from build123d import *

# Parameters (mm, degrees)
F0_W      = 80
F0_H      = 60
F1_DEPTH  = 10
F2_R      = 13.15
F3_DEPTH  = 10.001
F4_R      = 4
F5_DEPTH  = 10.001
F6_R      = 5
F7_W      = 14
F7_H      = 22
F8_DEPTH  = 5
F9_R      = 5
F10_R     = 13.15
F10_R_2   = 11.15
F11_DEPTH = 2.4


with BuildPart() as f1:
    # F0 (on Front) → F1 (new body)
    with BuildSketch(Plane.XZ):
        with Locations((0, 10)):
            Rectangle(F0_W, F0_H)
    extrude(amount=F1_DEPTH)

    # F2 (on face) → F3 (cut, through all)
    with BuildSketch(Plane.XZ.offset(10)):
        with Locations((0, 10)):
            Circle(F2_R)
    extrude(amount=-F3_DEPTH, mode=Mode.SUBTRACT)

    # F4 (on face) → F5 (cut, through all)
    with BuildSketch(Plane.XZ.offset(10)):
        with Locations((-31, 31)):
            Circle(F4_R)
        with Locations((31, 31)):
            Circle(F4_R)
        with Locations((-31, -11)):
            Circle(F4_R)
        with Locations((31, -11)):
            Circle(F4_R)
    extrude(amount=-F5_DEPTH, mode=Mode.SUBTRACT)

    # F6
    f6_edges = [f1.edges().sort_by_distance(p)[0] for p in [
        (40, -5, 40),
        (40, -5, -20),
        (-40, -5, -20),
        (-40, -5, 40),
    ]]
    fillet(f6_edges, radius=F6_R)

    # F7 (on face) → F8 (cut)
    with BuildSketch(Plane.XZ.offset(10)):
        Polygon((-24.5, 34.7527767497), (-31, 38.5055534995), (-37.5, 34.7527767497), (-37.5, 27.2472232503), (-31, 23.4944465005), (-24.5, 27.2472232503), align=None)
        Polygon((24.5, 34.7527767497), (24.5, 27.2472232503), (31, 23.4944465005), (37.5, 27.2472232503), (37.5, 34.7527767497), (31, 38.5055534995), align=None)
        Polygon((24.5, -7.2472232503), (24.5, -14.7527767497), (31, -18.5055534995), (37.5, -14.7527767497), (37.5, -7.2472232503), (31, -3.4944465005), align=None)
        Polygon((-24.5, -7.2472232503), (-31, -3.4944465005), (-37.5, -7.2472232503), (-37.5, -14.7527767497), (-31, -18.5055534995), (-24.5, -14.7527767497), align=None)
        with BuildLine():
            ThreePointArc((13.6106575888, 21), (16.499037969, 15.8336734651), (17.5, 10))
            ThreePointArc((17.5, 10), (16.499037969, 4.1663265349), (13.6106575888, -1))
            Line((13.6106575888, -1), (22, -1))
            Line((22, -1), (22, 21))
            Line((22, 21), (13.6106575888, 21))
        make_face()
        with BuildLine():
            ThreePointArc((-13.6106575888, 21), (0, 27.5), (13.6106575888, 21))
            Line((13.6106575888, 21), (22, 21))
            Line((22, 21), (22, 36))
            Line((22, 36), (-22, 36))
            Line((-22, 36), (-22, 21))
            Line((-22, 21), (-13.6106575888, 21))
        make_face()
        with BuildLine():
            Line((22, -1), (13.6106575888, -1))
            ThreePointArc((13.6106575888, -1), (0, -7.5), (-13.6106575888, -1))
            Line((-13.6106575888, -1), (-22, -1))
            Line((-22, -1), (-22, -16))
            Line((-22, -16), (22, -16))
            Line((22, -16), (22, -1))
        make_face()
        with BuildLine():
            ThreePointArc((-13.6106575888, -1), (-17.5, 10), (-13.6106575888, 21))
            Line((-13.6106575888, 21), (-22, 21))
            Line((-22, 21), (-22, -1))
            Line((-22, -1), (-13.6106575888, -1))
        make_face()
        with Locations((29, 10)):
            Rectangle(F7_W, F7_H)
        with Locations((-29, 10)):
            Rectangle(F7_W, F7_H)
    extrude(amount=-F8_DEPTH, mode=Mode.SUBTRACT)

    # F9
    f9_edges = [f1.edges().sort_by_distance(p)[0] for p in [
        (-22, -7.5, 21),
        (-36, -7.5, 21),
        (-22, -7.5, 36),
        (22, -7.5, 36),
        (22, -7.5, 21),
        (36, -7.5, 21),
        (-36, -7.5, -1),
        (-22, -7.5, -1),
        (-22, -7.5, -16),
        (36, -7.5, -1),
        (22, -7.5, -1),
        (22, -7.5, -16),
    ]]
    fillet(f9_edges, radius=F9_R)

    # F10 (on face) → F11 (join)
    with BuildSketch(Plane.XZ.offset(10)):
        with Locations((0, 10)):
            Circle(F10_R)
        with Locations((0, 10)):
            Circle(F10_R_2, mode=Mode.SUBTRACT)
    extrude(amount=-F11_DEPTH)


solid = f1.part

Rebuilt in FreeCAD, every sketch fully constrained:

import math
import FreeCAD as App
import Part
import Sketcher

V = App.Vector
Q = App.Units.Quantity


def edges_at(feature, points):
    """Names of the edges that pass closest to the given points."""
    edges = feature.Shape.Edges
    near = lambda p: min(range(len(edges)), key=lambda i: edges[i].distToShape(Part.Vertex(*p))[0])
    return sorted({f"Edge{near(p) + 1}" for p in points})

doc = App.newDocument("Part")
body = doc.addObject("PartDesign::Body", "Body")

sketch1 = doc.addObject("Sketcher::SketchObject", "Sketch")
body.addObject(sketch1)
sketch1.AttachmentSupport = (doc.XZ_Plane, [""])
sketch1.MapMode = "FlatFace"
sketch1.addGeometry([
    Part.LineSegment(V(-40, 40, 0), V(-40, -20, 0)),
    Part.LineSegment(V(-40, -20, 0), V(40, -20, 0)),
    Part.LineSegment(V(40, -20, 0), V(40, 40, 0)),
    Part.LineSegment(V(40, 40, 0), V(-40, 40, 0)),
], False)
sketch1.addConstraint([
    Sketcher.Constraint("Coincident", 0, 2, 1, 1),
    Sketcher.Constraint("Coincident", 1, 2, 2, 1),
    Sketcher.Constraint("Coincident", 2, 2, 3, 1),
    Sketcher.Constraint("Coincident", 3, 2, 0, 1),
    Sketcher.Constraint("Vertical", 0),
    Sketcher.Constraint("Horizontal", 1),
    Sketcher.Constraint("Vertical", 2),
    Sketcher.Constraint("Horizontal", 3),
    Sketcher.Constraint("DistanceX", 1, 1, 1, 2, Q("80 mm")),
    Sketcher.Constraint("DistanceY", 0, 2, 0, 1, Q("60 mm")),
    Sketcher.Constraint("DistanceX", 0, 2, -1, 1, Q("40 mm")),
    Sketcher.Constraint("DistanceY", 0, 2, -1, 1, Q("20 mm")),
])
pad1 = doc.addObject("PartDesign::Pad", "Pad")
body.addObject(pad1)
pad1.Profile = sketch1
pad1.Length = 10

sketch2 = doc.addObject("Sketcher::SketchObject", "Sketch001")
body.addObject(sketch2)
sketch2.AttachmentSupport = (doc.XZ_Plane, [""])
sketch2.MapMode = "FlatFace"
sketch2.AttachmentOffset = App.Placement(V(0, 0, 10), App.Rotation())
sketch2.addGeometry(Part.Circle(V(0, 10, 0), V(0, 0, 1), 13.15), False)
sketch2.addConstraint([
    Sketcher.Constraint("PointOnObject", 0, 3, -2),
    Sketcher.Constraint("Diameter", 0, Q("26.3 mm")),
    Sketcher.Constraint("DistanceY", -1, 1, 0, 3, Q("10 mm")),
])
pocket1 = doc.addObject("PartDesign::Pocket", "Pocket")
body.addObject(pocket1)
pocket1.Profile = sketch2
pocket1.Type = "ThroughAll"

sketch3 = doc.addObject("Sketcher::SketchObject", "Sketch002")
body.addObject(sketch3)
sketch3.AttachmentSupport = (doc.XZ_Plane, [""])
sketch3.MapMode = "FlatFace"
sketch3.AttachmentOffset = App.Placement(V(0, 0, 10), App.Rotation())
sketch3.addGeometry([
    Part.Circle(V(-31, 31, 0), V(0, 0, 1), 4),
    Part.Circle(V(31, 31, 0), V(0, 0, 1), 4),
    Part.Circle(V(-31, -11, 0), V(0, 0, 1), 4),
    Part.Circle(V(31, -11, 0), V(0, 0, 1), 4),
], False)
sketch3.addConstraint([
    Sketcher.Constraint("Equal", 0, 1),
    Sketcher.Constraint("Equal", 1, 2),
    Sketcher.Constraint("Equal", 2, 3),
    Sketcher.Constraint("Symmetric", 0, 3, 1, 3, -2),
    Sketcher.Constraint("Symmetric", 2, 3, 3, 3, -2),
    Sketcher.Constraint("Vertical", 0, 3, 2, 3),
    Sketcher.Constraint("Diameter", 0, Q("8 mm")),
    Sketcher.Constraint("DistanceX", 0, 3, -1, 1, Q("31 mm")),
    Sketcher.Constraint("DistanceY", -1, 1, 0, 3, Q("31 mm")),
    Sketcher.Constraint("DistanceY", 2, 3, -1, 1, Q("11 mm")),
])
pocket2 = doc.addObject("PartDesign::Pocket", "Pocket001")
body.addObject(pocket2)
pocket2.Profile = sketch3
pocket2.Type = "ThroughAll"
doc.recompute()

fillet = doc.addObject("PartDesign::Fillet", "Fillet")
body.addObject(fillet)
fillet.Base = (pocket2, edges_at(pocket2, [
    (40, -5, 40),
    (40, -5, -20),
    (-40, -5, -20),
    (-40, -5, 40),
]))
fillet.Radius = 5

sketch4 = doc.addObject("Sketcher::SketchObject", "Sketch003")
body.addObject(sketch4)
sketch4.AttachmentSupport = (doc.XZ_Plane, [""])
sketch4.MapMode = "FlatFace"
sketch4.AttachmentOffset = App.Placement(V(0, 0, 10), App.Rotation())
sketch4.addGeometry([
    Part.LineSegment(V(-24.5, 34.752777, 0), V(-31, 38.505553, 0)),
    Part.LineSegment(V(-31, 38.505553, 0), V(-37.5, 34.752777, 0)),
    Part.LineSegment(V(-37.5, 34.752777, 0), V(-37.5, 27.247223, 0)),
    Part.LineSegment(V(-37.5, 27.247223, 0), V(-31, 23.494447, 0)),
    Part.LineSegment(V(-31, 23.494447, 0), V(-24.5, 27.247223, 0)),
    Part.LineSegment(V(-24.5, 27.247223, 0), V(-24.5, 34.752777, 0)),
    Part.LineSegment(V(24.5, 34.752777, 0), V(24.5, 27.247223, 0)),
    Part.LineSegment(V(24.5, 27.247223, 0), V(31, 23.494447, 0)),
    Part.LineSegment(V(31, 23.494447, 0), V(37.5, 27.247223, 0)),
    Part.LineSegment(V(37.5, 27.247223, 0), V(37.5, 34.752777, 0)),
    Part.LineSegment(V(37.5, 34.752777, 0), V(31, 38.505553, 0)),
    Part.LineSegment(V(31, 38.505553, 0), V(24.5, 34.752777, 0)),
    Part.LineSegment(V(24.5, -7.247223, 0), V(24.5, -14.752777, 0)),
    Part.LineSegment(V(24.5, -14.752777, 0), V(31, -18.505553, 0)),
    Part.LineSegment(V(31, -18.505553, 0), V(37.5, -14.752777, 0)),
    Part.LineSegment(V(37.5, -14.752777, 0), V(37.5, -7.247223, 0)),
    Part.LineSegment(V(37.5, -7.247223, 0), V(31, -3.494447, 0)),
    Part.LineSegment(V(31, -3.494447, 0), V(24.5, -7.247223, 0)),
    Part.LineSegment(V(-24.5, -7.247223, 0), V(-31, -3.494447, 0)),
    Part.LineSegment(V(-31, -3.494447, 0), V(-37.5, -7.247223, 0)),
    Part.LineSegment(V(-37.5, -7.247223, 0), V(-37.5, -14.752777, 0)),
    Part.LineSegment(V(-37.5, -14.752777, 0), V(-31, -18.505553, 0)),
    Part.LineSegment(V(-31, -18.505553, 0), V(-24.5, -14.752777, 0)),
    Part.LineSegment(V(-24.5, -14.752777, 0), V(-24.5, -7.247223, 0)),
    Part.LineSegment(V(-22, -16, 0), V(22, -16, 0)),
    Part.LineSegment(V(22, -16, 0), V(22, -1, 0)),
    Part.LineSegment(V(22, -1, 0), V(36, -1, 0)),
    Part.LineSegment(V(36, -1, 0), V(36, 21, 0)),
    Part.LineSegment(V(36, 21, 0), V(22, 21, 0)),
    Part.LineSegment(V(22, 21, 0), V(22, 36, 0)),
    Part.LineSegment(V(22, 36, 0), V(-22, 36, 0)),
    Part.LineSegment(V(-22, 36, 0), V(-22, 21, 0)),
    Part.LineSegment(V(-22, 21, 0), V(-36, 21, 0)),
    Part.LineSegment(V(-36, 21, 0), V(-36, -1, 0)),
    Part.LineSegment(V(-36, -1, 0), V(-22, -1, 0)),
    Part.LineSegment(V(-22, -1, 0), V(-22, -16, 0)),
    Part.ArcOfCircle(Part.Circle(V(0, 10, 0), V(0, 0, 1), 17.5), math.radians(-38.944804), math.radians(38.944804)),
    Part.ArcOfCircle(Part.Circle(V(0, 10, 0), V(0, 0, 1), 17.5), math.radians(-141.055196), math.radians(-38.944804)),
    Part.ArcOfCircle(Part.Circle(V(0, 10, 0), V(0, 0, 1), 17.5), math.radians(141.055196), math.radians(218.944804)),
    Part.ArcOfCircle(Part.Circle(V(0, 10, 0), V(0, 0, 1), 17.5), math.radians(38.944804), math.radians(141.055196)),
], False)
sketch4.addConstraint([
    Sketcher.Constraint("Coincident", 0, 2, 1, 1),
    Sketcher.Constraint("Coincident", 1, 2, 2, 1),
    Sketcher.Constraint("Coincident", 2, 2, 3, 1),
    Sketcher.Constraint("Coincident", 3, 2, 4, 1),
    Sketcher.Constraint("Coincident", 4, 2, 5, 1),
    Sketcher.Constraint("Coincident", 5, 2, 0, 1),
    Sketcher.Constraint("Coincident", 6, 2, 7, 1),
    Sketcher.Constraint("Coincident", 7, 2, 8, 1),
    Sketcher.Constraint("Coincident", 8, 2, 9, 1),
    Sketcher.Constraint("Coincident", 9, 2, 10, 1),
    Sketcher.Constraint("Coincident", 10, 2, 11, 1),
    Sketcher.Constraint("Coincident", 11, 2, 6, 1),
    Sketcher.Constraint("Coincident", 12, 2, 13, 1),
    Sketcher.Constraint("Coincident", 13, 2, 14, 1),
    Sketcher.Constraint("Coincident", 14, 2, 15, 1),
    Sketcher.Constraint("Coincident", 15, 2, 16, 1),
    Sketcher.Constraint("Coincident", 16, 2, 17, 1),
    Sketcher.Constraint("Coincident", 17, 2, 12, 1),
    Sketcher.Constraint("Coincident", 18, 2, 19, 1),
    Sketcher.Constraint("Coincident", 19, 2, 20, 1),
    Sketcher.Constraint("Coincident", 20, 2, 21, 1),
    Sketcher.Constraint("Coincident", 21, 2, 22, 1),
    Sketcher.Constraint("Coincident", 22, 2, 23, 1),
    Sketcher.Constraint("Coincident", 23, 2, 18, 1),
    Sketcher.Constraint("Coincident", 24, 2, 25, 1),
    Sketcher.Constraint("Coincident", 25, 2, 26, 1),
    Sketcher.Constraint("Coincident", 26, 2, 27, 1),
    Sketcher.Constraint("Coincident", 27, 2, 28, 1),
    Sketcher.Constraint("Coincident", 28, 2, 29, 1),
    Sketcher.Constraint("Coincident", 29, 2, 30, 1),
    Sketcher.Constraint("Coincident", 30, 2, 31, 1),
    Sketcher.Constraint("Coincident", 31, 2, 32, 1),
    Sketcher.Constraint("Coincident", 32, 2, 33, 1),
    Sketcher.Constraint("Coincident", 33, 2, 34, 1),
    Sketcher.Constraint("Coincident", 34, 2, 35, 1),
    Sketcher.Constraint("Coincident", 35, 2, 24, 1),
    Sketcher.Constraint("Tangent", 36, 1, 37, 2),
    Sketcher.Constraint("Tangent", 37, 1, 38, 2),
    Sketcher.Constraint("Tangent", 38, 1, 39, 2),
    Sketcher.Constraint("Tangent", 39, 1, 36, 2),
    Sketcher.Constraint("Vertical", 2),
    Sketcher.Constraint("Vertical", 5),
    Sketcher.Constraint("Vertical", 6),
    Sketcher.Constraint("Vertical", 9),
    Sketcher.Constraint("Vertical", 12),
    Sketcher.Constraint("Vertical", 15),
    Sketcher.Constraint("Vertical", 20),
    Sketcher.Constraint("Vertical", 23),
    Sketcher.Constraint("Horizontal", 24),
    Sketcher.Constraint("Vertical", 25),
    Sketcher.Constraint("Horizontal", 26),
    Sketcher.Constraint("Vertical", 27),
    Sketcher.Constraint("Horizontal", 28),
    Sketcher.Constraint("Vertical", 29),
    Sketcher.Constraint("Horizontal", 30),
    Sketcher.Constraint("Vertical", 31),
    Sketcher.Constraint("Horizontal", 32),
    Sketcher.Constraint("Vertical", 33),
    Sketcher.Constraint("Horizontal", 34),
    Sketcher.Constraint("Vertical", 35),
    Sketcher.Constraint("Equal", 36, 37),
    Sketcher.Constraint("Symmetric", 4, 2, 6, 2, -2),
    Sketcher.Constraint("Symmetric", 3, 2, 7, 2, -2),
    Sketcher.Constraint("Symmetric", 2, 2, 8, 2, -2),
    Sketcher.Constraint("Symmetric", 0, 2, 10, 2, -2),
    Sketcher.Constraint("Symmetric", 16, 2, 18, 2, -2),
    Sketcher.Constraint("Symmetric", 15, 2, 19, 2, -2),
    Sketcher.Constraint("Symmetric", 13, 2, 21, 2, -2),
    Sketcher.Constraint("Symmetric", 12, 2, 22, 2, -2),
    Sketcher.Constraint("Symmetric", 28, 2, 31, 2, -2),
    Sketcher.Constraint("Symmetric", 26, 2, 33, 2, -2),
    Sketcher.Constraint("Symmetric", 36, 1, 37, 1, -2),
    Sketcher.Constraint("Parallel", 0, 3),
    Sketcher.Constraint("Parallel", 1, 4),
    Sketcher.Constraint("Parallel", 3, 7),
    Sketcher.Constraint("Parallel", 7, 10),
    Sketcher.Constraint("Parallel", 8, 11),
    Sketcher.Constraint("Parallel", 10, 13),
    Sketcher.Constraint("Parallel", 11, 14),
    Sketcher.Constraint("Parallel", 13, 16),
    Sketcher.Constraint("Parallel", 14, 17),
    Sketcher.Constraint("Parallel", 16, 18),
    Sketcher.Constraint("Parallel", 18, 21),
    Sketcher.Constraint("Horizontal", 2, 2, 4, 2),
    Sketcher.Constraint("Horizontal", 1, 2, 5, 2),
    Sketcher.Constraint("Horizontal", 12, 2, 14, 2),
    Sketcher.Constraint("Horizontal", 15, 2, 17, 2),
    Sketcher.Constraint("Horizontal", 34, 2, 36, 1),
    Sketcher.Constraint("Horizontal", 32, 2, 38, 1),
    Sketcher.Constraint("Horizontal", 38, 1, 39, 1),
    Sketcher.Constraint("Vertical", 11, 2, 12, 2),
    Sketcher.Constraint("Vertical", 10, 2, 13, 2),
    Sketcher.Constraint("Vertical", 25, 2, 28, 2),
    Sketcher.Constraint("Vertical", 31, 2, 34, 2),
    Sketcher.Constraint("Vertical", 37, 1, 38, 1),
    Sketcher.Constraint("Equal", 9, 12),
    Sketcher.Constraint("Equal", 25, 29),
    Sketcher.Constraint("Radius", 36, Q("17.5 mm")),
    Sketcher.Constraint("DistanceX", 24, 1, 24, 2, Q("44 mm")),
    Sketcher.Constraint("DistanceX", 26, 1, 26, 2, Q("14 mm")),
    Sketcher.Constraint("DistanceY", 25, 1, 25, 2, Q("15 mm")),
    Sketcher.Constraint("DistanceY", 27, 1, 27, 2, Q("22 mm")),
    Sketcher.Constraint("Angle", 0, Q("150 deg")),
    Sketcher.Constraint("DistanceY", -1, 1, 36, 3, Q("10 mm")),
    Sketcher.Constraint("DistanceX", 0, 2, -1, 1, Q("31 mm")),
    Sketcher.Constraint("DistanceX", 2, 2, 4, 2, Q("13 mm")),
    Sketcher.Constraint("DistanceY", 13, 2, 7, 2, Q("42 mm")),
    Sketcher.Constraint("DistanceY", 2, 2, 2, 1, Q("7.505554 mm")),
    Sketcher.Constraint("DistanceY", -1, 1, 0, 2, Q("38.505553 mm")),
])
pocket3 = doc.addObject("PartDesign::Pocket", "Pocket002")
body.addObject(pocket3)
pocket3.Profile = sketch4
pocket3.Length = 5
doc.recompute()

fillet2 = doc.addObject("PartDesign::Fillet", "Fillet001")
body.addObject(fillet2)
fillet2.Base = (pocket3, edges_at(pocket3, [
    (-22, -7.5, 21),
    (-36, -7.5, 21),
    (-22, -7.5, 36),
    (22, -7.5, 36),
    (22, -7.5, 21),
    (36, -7.5, 21),
    (-36, -7.5, -1),
    (-22, -7.5, -1),
    (-22, -7.5, -16),
    (36, -7.5, -1),
    (22, -7.5, -1),
    (22, -7.5, -16),
]))
fillet2.Radius = 5

sketch5 = doc.addObject("Sketcher::SketchObject", "Sketch004")
body.addObject(sketch5)
sketch5.AttachmentSupport = (doc.XZ_Plane, [""])
sketch5.MapMode = "FlatFace"
sketch5.AttachmentOffset = App.Placement(V(0, 0, 10), App.Rotation())
sketch5.addGeometry([
    Part.Circle(V(0, 10, 0), V(0, 0, 1), 13.15),
    Part.Circle(V(0, 10, 0), V(0, 0, 1), 11.15),
], False)
sketch5.addConstraint([
    Sketcher.Constraint("Coincident", 1, 3, 0, 3),
    Sketcher.Constraint("PointOnObject", 0, 3, -2),
    Sketcher.Constraint("Diameter", 0, Q("26.3 mm")),
    Sketcher.Constraint("Diameter", 1, Q("22.3 mm")),
    Sketcher.Constraint("DistanceY", -1, 1, 0, 3, Q("10 mm")),
])
pad2 = doc.addObject("PartDesign::Pad", "Pad001")
body.addObject(pad2)
pad2.Profile = sketch5
pad2.Length = 2.4
pad2.Reversed = True

doc.recompute()
